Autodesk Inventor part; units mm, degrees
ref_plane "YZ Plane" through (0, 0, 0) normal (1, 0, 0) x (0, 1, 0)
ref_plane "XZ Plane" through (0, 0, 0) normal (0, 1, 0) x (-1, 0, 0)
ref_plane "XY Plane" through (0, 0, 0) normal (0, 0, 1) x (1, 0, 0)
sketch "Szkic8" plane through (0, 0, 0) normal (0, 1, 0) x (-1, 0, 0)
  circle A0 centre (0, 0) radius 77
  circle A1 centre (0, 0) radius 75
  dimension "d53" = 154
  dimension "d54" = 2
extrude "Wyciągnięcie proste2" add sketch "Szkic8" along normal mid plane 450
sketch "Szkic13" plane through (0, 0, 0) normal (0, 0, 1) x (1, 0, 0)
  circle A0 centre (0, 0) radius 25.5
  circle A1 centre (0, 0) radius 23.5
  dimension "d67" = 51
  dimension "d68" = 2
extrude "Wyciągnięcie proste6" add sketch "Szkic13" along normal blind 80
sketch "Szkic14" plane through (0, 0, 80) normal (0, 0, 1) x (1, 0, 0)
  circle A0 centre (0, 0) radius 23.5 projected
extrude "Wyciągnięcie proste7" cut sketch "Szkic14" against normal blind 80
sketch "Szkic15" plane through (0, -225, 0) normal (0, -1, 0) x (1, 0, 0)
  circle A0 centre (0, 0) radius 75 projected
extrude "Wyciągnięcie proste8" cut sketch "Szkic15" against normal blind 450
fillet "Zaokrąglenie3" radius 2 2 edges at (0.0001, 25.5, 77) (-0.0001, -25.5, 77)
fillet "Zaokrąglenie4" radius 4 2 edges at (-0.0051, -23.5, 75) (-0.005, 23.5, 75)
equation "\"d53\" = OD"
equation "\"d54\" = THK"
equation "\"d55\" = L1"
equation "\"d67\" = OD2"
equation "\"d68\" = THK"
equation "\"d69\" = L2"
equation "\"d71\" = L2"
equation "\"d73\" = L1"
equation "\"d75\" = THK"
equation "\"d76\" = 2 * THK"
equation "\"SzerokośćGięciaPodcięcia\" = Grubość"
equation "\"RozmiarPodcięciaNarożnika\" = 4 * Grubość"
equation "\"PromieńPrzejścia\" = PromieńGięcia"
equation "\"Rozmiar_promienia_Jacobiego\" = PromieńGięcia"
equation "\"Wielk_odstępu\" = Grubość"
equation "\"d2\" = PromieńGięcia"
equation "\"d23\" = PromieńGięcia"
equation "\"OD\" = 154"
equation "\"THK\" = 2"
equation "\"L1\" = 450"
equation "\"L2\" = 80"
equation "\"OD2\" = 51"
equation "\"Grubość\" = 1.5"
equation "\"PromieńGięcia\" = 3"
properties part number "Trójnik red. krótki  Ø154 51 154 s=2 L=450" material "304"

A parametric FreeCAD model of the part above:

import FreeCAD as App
import Part
import Sketcher
from FreeCAD import Vector


def edges_at(feature, points):
    """Names of the edges that pass closest to the given points."""
    edges = feature.Shape.Edges
    near = lambda p: min(range(len(edges)), key=lambda i: edges[i].distToShape(Part.Vertex(*p))[0])
    return sorted({f"Edge{near(p) + 1}" for p in points})

doc = App.newDocument("Part")
body = doc.addObject("PartDesign::Body", "Body")

sketch1 = body.newObject("Sketcher::SketchObject", "Sketch")
sketch1.AttachmentSupport = (doc.getObject("XZ_Plane"), [""])
sketch1.MapMode = "FlatFace"
sketch1.addGeometry(Part.Circle(Vector(0, 0, 0), Vector(0, 0, 1), 77), False)
sketch1.addGeometry(Part.Circle(Vector(0, 0, 0), Vector(0, 0, 1), 75), False)
sketch1.addConstraint(Sketcher.Constraint("Coincident", 0, 3, -1, 1))
sketch1.addConstraint(Sketcher.Constraint("Coincident", 1, 3, -1, 1))
sketch1.addConstraint(Sketcher.Constraint("Diameter", 0, 154.0))
sketch1.addConstraint(Sketcher.Constraint("Diameter", 1, 150.0))
pad1 = body.newObject("PartDesign::Pad", "Pad")
pad1.Profile = sketch1
pad1.Length = 450
pad1.Midplane = True

sketch2 = body.newObject("Sketcher::SketchObject", "Sketch001")
sketch2.AttachmentSupport = (doc.getObject("XY_Plane"), [""])
sketch2.MapMode = "FlatFace"
sketch2.addGeometry(Part.Circle(Vector(0, 0, 0), Vector(0, 0, 1), 26), False)
sketch2.addGeometry(Part.Circle(Vector(0, 0, 0), Vector(0, 0, 1), 24), False)
sketch2.addConstraint(Sketcher.Constraint("Coincident", 0, 3, -1, 1))
sketch2.addConstraint(Sketcher.Constraint("Coincident", 1, 3, -1, 1))
sketch2.addConstraint(Sketcher.Constraint("Diameter", 0, 51.0))
sketch2.addConstraint(Sketcher.Constraint("Diameter", 1, 47.0))
pad2 = body.newObject("PartDesign::Pad", "Pad001")
pad2.Profile = sketch2
pad2.Length = 80

sketch3 = body.newObject("Sketcher::SketchObject", "Sketch002")
sketch3.AttachmentSupport = (doc.getObject("XY_Plane"), [""])
sketch3.MapMode = "FlatFace"
sketch3.AttachmentOffset = App.Placement(Vector(0, 0, 80), App.Rotation())
sketch3.addGeometry(Part.Circle(Vector(0, 0, 0), Vector(0, 0, 1), 24), False)
sketch3.addConstraint(Sketcher.Constraint("Coincident", 0, 3, -1, 1))
sketch3.addConstraint(Sketcher.Constraint("Diameter", 0, 47.0))
pocket1 = body.newObject("PartDesign::Pocket", "Pocket")
pocket1.Profile = sketch3
pocket1.Length = 80

sketch4 = body.newObject("Sketcher::SketchObject", "Sketch003")
sketch4.AttachmentSupport = (doc.getObject("XZ_Plane"), [""])
sketch4.MapMode = "FlatFace"
sketch4.AttachmentOffset = App.Placement(Vector(0, 0, 225), App.Rotation())
sketch4.addGeometry(Part.Circle(Vector(0, 0, 0), Vector(0, 0, 1), 75), False)
sketch4.addConstraint(Sketcher.Constraint("Coincident", 0, 3, -1, 1))
sketch4.addConstraint(Sketcher.Constraint("Diameter", 0, 150.0))
pocket2 = body.newObject("PartDesign::Pocket", "Pocket001")
pocket2.Profile = sketch4
pocket2.Length = 450
doc.recompute()

fillet = body.newObject("PartDesign::Fillet", "Fillet")
fillet.Base = (pocket2, edges_at(pocket2, [(0, 25.5, 77), (0, -25.5, 77)]))
fillet.Radius = 2
doc.recompute()

fillet2 = body.newObject("PartDesign::Fillet", "Fillet001")
fillet2.Base = (fillet, edges_at(fillet, [(-0.005, -23.5, 75), (-0.005, 23.5, 75)]))
fillet2.Radius = 4

doc.recompute()
